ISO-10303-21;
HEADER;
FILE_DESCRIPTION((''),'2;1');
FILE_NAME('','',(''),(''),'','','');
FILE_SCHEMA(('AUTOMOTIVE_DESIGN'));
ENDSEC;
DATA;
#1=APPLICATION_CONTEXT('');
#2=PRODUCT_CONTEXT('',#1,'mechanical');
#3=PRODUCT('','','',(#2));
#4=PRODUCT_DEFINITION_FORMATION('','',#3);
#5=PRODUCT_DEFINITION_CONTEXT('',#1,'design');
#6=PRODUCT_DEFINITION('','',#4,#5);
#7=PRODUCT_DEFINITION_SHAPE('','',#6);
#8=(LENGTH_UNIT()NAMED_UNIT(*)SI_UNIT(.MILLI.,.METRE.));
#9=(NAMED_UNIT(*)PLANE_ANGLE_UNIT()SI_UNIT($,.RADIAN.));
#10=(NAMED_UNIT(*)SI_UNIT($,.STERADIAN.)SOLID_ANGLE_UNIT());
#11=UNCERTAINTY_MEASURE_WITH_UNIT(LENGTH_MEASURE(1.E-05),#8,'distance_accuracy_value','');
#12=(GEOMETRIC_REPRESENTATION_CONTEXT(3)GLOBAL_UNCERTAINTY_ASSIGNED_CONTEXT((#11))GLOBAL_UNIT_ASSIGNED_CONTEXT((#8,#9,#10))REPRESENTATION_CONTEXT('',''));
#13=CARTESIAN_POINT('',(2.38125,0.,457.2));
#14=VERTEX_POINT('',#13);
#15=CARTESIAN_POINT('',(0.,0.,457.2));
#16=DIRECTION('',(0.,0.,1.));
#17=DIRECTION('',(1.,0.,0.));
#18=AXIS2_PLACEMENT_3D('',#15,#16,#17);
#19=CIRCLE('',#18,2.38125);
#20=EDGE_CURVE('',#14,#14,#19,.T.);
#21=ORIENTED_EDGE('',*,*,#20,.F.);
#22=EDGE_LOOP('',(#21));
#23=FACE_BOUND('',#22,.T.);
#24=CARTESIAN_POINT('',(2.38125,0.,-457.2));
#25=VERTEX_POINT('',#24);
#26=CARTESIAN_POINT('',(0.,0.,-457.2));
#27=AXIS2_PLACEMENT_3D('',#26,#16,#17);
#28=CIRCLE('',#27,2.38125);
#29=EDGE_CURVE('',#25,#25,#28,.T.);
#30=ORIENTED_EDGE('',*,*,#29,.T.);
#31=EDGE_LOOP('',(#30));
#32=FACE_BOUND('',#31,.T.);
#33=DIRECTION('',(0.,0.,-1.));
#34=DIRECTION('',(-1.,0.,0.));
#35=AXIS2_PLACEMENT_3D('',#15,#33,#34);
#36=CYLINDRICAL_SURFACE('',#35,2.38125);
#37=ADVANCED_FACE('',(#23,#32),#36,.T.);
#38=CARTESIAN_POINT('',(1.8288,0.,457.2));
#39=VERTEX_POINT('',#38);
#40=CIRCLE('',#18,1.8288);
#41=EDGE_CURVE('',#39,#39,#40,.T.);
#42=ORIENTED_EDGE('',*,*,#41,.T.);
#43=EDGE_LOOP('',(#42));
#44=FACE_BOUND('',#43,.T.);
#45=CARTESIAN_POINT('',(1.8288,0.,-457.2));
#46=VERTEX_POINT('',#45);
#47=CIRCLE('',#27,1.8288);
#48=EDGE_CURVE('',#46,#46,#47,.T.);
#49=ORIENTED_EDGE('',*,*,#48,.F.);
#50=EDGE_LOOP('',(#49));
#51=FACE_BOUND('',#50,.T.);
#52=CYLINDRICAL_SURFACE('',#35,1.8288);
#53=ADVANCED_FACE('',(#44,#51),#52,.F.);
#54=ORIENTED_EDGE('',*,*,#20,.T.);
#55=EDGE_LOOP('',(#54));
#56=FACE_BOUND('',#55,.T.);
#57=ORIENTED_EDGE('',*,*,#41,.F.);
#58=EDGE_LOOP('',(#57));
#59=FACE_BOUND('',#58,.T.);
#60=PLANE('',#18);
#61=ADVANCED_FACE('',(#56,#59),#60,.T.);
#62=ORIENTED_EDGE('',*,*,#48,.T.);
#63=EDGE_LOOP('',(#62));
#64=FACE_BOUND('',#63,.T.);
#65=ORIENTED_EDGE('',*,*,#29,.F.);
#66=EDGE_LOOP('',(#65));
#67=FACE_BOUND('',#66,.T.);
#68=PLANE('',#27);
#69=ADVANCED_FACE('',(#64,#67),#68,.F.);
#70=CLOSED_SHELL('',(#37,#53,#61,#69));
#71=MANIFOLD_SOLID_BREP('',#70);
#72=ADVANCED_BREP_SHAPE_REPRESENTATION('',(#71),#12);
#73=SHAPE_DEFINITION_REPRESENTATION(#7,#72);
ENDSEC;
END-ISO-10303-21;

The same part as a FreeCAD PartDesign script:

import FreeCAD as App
import Part
import Sketcher

V = App.Vector
Q = App.Units.Quantity

doc = App.newDocument("Part")
body = doc.addObject("PartDesign::Body", "Body")

sketch1 = doc.addObject("Sketcher::SketchObject", "Sketch")
body.addObject(sketch1)
sketch1.AttachmentSupport = (doc.XY_Plane, [""])
sketch1.MapMode = "FlatFace"
sketch1.addGeometry([
    Part.Circle(V(0, 0, 0), V(0, 0, 1), 2.4),
    Part.Circle(V(0, 0, 0), V(0, 0, 1), 1.8),
], False)
sketch1.addConstraint([
    Sketcher.Constraint("Coincident", 0, 3, -1, 1),
    Sketcher.Constraint("Coincident", 1, 3, -1, 1),
    Sketcher.Constraint("Diameter", 0, Q("0.1875 in")),
    Sketcher.Constraint("Diameter", 1, Q("0.144 in")),
])
pad1 = doc.addObject("PartDesign::Pad", "Pad")
body.addObject(pad1)
pad1.Profile = sketch1
pad1.Length = Q("36 in")
pad1.Midplane = True

doc.recompute()
